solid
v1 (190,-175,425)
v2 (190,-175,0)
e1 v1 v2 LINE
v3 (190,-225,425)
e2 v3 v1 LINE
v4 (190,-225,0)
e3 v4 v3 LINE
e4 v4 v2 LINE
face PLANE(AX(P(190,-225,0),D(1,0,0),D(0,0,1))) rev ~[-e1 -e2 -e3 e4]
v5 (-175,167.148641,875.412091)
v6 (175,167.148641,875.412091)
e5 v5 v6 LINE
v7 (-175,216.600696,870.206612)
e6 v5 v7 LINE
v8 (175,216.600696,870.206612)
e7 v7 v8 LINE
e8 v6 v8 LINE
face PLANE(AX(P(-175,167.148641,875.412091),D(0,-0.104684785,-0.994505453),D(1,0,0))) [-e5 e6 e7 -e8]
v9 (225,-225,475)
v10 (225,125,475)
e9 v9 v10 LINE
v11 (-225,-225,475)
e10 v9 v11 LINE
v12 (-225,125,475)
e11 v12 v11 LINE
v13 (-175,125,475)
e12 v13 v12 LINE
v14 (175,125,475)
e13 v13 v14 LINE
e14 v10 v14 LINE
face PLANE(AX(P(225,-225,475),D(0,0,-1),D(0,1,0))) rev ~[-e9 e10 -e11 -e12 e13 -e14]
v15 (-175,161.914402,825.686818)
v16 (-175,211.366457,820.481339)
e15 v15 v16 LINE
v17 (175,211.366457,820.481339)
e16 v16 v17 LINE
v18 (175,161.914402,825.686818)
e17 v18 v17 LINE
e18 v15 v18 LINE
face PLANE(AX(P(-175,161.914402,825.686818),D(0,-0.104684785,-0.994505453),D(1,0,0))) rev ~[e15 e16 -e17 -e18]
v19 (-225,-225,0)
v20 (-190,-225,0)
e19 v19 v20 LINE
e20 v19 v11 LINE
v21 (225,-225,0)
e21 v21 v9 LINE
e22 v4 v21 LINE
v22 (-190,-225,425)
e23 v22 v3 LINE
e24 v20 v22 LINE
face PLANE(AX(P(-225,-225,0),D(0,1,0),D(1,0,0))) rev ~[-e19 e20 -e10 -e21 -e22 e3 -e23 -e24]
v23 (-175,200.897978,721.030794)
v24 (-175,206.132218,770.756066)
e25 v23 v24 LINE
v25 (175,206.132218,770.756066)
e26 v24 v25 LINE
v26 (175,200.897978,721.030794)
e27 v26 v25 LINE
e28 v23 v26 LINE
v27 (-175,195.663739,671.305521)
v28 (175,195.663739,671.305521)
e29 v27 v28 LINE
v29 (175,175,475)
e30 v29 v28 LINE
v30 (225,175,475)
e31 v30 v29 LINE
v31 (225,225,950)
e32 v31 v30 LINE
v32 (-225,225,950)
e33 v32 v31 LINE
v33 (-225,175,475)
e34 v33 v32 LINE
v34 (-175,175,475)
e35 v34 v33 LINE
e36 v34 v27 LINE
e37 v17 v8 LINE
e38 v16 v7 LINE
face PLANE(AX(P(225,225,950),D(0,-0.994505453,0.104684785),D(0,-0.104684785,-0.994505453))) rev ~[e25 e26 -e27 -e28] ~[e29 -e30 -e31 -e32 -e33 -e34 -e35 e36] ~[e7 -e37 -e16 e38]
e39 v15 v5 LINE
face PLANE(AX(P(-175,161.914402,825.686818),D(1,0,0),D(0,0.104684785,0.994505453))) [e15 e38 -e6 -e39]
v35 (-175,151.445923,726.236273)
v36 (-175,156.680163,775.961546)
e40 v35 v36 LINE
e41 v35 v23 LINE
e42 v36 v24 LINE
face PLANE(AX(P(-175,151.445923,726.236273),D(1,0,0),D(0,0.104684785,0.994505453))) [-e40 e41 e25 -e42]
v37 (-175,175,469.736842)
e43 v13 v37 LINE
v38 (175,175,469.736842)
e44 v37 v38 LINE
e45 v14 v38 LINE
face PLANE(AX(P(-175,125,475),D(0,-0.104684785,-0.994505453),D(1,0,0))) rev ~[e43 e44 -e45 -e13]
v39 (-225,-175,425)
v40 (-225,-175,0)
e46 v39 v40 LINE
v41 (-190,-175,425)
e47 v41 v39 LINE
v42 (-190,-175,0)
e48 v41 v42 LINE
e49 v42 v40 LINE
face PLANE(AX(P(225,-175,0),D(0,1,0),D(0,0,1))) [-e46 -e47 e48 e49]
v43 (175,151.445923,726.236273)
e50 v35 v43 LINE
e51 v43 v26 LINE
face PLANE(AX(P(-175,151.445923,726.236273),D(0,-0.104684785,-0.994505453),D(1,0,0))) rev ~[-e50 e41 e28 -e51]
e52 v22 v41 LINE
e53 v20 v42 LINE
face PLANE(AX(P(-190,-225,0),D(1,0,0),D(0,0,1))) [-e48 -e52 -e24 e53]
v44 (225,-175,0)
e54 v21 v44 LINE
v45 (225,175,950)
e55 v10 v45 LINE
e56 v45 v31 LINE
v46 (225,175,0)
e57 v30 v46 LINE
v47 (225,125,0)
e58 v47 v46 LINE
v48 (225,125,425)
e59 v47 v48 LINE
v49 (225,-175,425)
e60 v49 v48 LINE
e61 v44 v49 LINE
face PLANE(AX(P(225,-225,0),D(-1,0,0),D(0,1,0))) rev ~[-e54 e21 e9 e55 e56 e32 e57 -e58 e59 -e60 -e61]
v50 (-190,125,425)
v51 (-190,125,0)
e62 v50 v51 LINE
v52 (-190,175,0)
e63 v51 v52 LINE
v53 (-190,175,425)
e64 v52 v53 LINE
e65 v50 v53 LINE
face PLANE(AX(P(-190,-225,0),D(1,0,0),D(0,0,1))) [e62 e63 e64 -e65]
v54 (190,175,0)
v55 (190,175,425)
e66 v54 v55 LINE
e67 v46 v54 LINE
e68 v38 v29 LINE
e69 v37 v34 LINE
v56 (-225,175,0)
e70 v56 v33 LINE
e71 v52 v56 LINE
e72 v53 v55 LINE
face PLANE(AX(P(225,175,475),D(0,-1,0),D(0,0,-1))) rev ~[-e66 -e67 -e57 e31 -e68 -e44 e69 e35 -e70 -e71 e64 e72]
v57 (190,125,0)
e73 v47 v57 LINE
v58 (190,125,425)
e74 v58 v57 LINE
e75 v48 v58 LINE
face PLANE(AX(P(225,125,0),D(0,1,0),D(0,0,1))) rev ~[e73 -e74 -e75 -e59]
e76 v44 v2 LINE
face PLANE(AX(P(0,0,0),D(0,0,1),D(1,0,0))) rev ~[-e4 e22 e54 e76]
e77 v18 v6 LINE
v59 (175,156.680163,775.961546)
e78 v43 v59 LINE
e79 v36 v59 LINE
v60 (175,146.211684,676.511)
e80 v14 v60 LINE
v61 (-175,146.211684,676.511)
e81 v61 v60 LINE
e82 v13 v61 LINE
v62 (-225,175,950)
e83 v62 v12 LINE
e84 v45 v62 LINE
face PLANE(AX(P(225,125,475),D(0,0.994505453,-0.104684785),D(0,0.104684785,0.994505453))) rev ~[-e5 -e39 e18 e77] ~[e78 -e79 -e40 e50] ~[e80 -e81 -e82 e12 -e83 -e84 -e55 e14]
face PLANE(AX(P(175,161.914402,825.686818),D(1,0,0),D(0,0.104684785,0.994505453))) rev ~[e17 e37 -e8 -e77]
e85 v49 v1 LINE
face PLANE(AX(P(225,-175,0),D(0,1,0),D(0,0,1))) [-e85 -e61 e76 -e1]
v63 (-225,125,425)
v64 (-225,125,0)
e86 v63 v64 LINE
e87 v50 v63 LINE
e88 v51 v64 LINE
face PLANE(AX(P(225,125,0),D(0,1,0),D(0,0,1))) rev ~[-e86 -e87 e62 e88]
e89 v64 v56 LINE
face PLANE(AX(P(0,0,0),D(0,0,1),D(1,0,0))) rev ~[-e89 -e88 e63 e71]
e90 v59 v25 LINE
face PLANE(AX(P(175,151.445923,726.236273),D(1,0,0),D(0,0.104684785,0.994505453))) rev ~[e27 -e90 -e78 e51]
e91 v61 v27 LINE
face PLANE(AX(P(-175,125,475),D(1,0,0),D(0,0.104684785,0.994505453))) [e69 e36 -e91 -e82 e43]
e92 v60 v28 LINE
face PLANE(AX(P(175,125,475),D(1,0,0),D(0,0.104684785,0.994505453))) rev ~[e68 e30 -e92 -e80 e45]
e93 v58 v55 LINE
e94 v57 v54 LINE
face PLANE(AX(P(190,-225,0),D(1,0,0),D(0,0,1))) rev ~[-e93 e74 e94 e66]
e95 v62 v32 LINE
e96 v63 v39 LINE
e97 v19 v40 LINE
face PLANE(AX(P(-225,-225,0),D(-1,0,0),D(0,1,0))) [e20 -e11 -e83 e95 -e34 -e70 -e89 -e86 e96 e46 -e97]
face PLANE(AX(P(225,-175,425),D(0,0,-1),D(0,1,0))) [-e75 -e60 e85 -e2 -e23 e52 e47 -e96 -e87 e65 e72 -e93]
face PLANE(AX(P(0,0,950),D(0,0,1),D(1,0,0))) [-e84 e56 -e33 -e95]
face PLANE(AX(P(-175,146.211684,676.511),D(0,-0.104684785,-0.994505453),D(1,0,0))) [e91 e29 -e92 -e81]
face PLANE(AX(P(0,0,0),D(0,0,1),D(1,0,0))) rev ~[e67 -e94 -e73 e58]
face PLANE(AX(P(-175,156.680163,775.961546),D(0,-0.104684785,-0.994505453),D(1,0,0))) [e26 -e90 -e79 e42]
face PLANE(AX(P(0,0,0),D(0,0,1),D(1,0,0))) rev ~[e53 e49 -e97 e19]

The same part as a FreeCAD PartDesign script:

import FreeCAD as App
import Part
import Sketcher
from FreeCAD import Vector


def add_polygon(sketch, points):
    """Adds a closed chain of lines whose ends are joined by coincident constraints."""
    first, n = sketch.GeometryCount, len(points)
    for a, b in zip(points, points[1:] + points[:1]):
        sketch.addGeometry(Part.LineSegment(App.Vector(*a, 0), App.Vector(*b, 0)), False)
    for i in range(n):
        sketch.addConstraint(Sketcher.Constraint("Coincident", first + i, 2, first + (i + 1) % n, 1))

doc = App.newDocument("Part")
body = doc.addObject("PartDesign::Body", "Body")

# Sketch on XY plane
sketch1 = body.newObject("Sketcher::SketchObject", "Sketch")
sketch1.AttachmentSupport = (doc.getObject("XY_Plane"), [""])
sketch1.MapMode = "FlatFace"
add_polygon(sketch1, [(-225, 225), (-225, -225), (225, -225), (225, 225)])  # lines 0-3
sketch1.addConstraint([
    Sketcher.Constraint("Vertical", 0),
    Sketcher.Constraint("Horizontal", 1),
    Sketcher.Constraint("Vertical", 2),
    Sketcher.Constraint("Horizontal", 3),
    Sketcher.Constraint("Symmetric", 0, 2, 2, 2, -1, 1),
    Sketcher.Constraint("Equal", 3, 0),
    Sketcher.Constraint("DistanceX", 1, 1, 1, 2, 450.0),
])
pad1 = body.newObject("PartDesign::Pad", "Pad")
pad1.Profile = sketch1
pad1.Length = 950

# Sketch on YZ plane
sketch2 = body.newObject("Sketcher::SketchObject", "Sketch001")
sketch2.AttachmentSupport = (doc.getObject("YZ_Plane"), [""])
sketch2.MapMode = "FlatFace"
sketch2.AttachmentOffset = App.Placement(Vector(0, 0, 225), App.Rotation())
add_polygon(sketch2, [(-225, 475), (125, 475), (175, 950), (-225, 950)])  # lines 0-3
add_polygon(sketch2, [(225, 950), (175, 475), (175, 0), (225, 0)])  # lines 4-7
add_polygon(sketch2, [(-175, 425), (-175, 0), (125, 0), (125, 425)])  # lines 8-11
sketch2.addConstraint([
    Sketcher.Constraint("Horizontal", 0),
    Sketcher.Constraint("Horizontal", 2),
    Sketcher.Constraint("Vertical", 3),
    Sketcher.Constraint("Vertical", 5),
    Sketcher.Constraint("Horizontal", 6),
    Sketcher.Constraint("Vertical", 7),
    Sketcher.Constraint("Vertical", 8),
    Sketcher.Constraint("Horizontal", 9),
    Sketcher.Constraint("Vertical", 10),
    Sketcher.Constraint("Horizontal", 11),
    Sketcher.Constraint("Symmetric", 5, 2, 8, 2, -1, 1),
    Sketcher.Constraint("Symmetric", 2, 2, 7, 2, -2),
    Sketcher.Constraint("PointOnObject", 5, 2, -1),
    Sketcher.Constraint("Parallel", 1, 4),
    Sketcher.Constraint("Horizontal", 3, 2, 4, 2),
    Sketcher.Constraint("Vertical", 1, 2, 4, 2),
    Sketcher.Constraint("Vertical", 0, 2, 9, 2),
    Sketcher.Constraint("Equal", 3, 5),
    Sketcher.Constraint("DistanceX", 0, 1, 0, 2, 350.0),
    Sketcher.Constraint("DistanceX", 2, 2, 2, 1, 400.0),
    Sketcher.Constraint("DistanceY", 3, 2, 3, 1, 475.0),
    Sketcher.Constraint("DistanceY", 8, 2, 8, 1, 425.0),
])
pocket1 = body.newObject("PartDesign::Pocket", "Pocket")
pocket1.Profile = sketch2
pocket1.Type = "ThroughAll"

# Sketch on XZ plane
sketch3 = body.newObject("Sketcher::SketchObject", "Sketch002")
sketch3.AttachmentSupport = (doc.getObject("XZ_Plane"), [""])
sketch3.MapMode = "FlatFace"
sketch3.AttachmentOffset = App.Placement(Vector(0, 0, 225), App.Rotation())
add_polygon(sketch3, [(-190, 425), (-190, 0), (190, 0), (190, 425)])  # lines 0-3
sketch3.addConstraint([
    Sketcher.Constraint("Vertical", 0),
    Sketcher.Constraint("Horizontal", 1),
    Sketcher.Constraint("Vertical", 2),
    Sketcher.Constraint("Horizontal", 3),
    Sketcher.Constraint("Symmetric", 0, 2, 1, 2, -1, 1),
    Sketcher.Constraint("DistanceX", 1, 1, 1, 2, 380.0),
    Sketcher.Constraint("DistanceY", 0, 2, 0, 1, 425.0),
])
pocket2 = body.newObject("PartDesign::Pocket", "Pocket001")
pocket2.Profile = sketch3
pocket2.Type = "ThroughAll"

# Sketch on an angled plane
sketch4 = body.newObject("Sketcher::SketchObject", "Sketch003")
sketch4.Placement = App.Placement(Vector(0, 74.178082, -7.808219), App.Rotation(Vector(1, 0, 0), Vector(0, 0.104684785, 0.994505453), Vector(0, -0.994505453, 0.104684785), "ZXY"))
add_polygon(sketch4, [(-175, 688.100018), (-175, 485.475688), (175, 485.475688), (175, 688.100018)])  # lines 0-3
add_polygon(sketch4, [(-175, 788.100018), (-175, 738.100018), (175, 738.100018), (175, 788.100018)])  # lines 4-7
add_polygon(sketch4, [(-175, 888.100018), (-175, 838.100018), (175, 838.100018), (175, 888.100018)])  # lines 8-11
sketch4.addConstraint([
    Sketcher.Constraint("Vertical", 0),
    Sketcher.Constraint("Horizontal", 1),
    Sketcher.Constraint("Vertical", 2),
    Sketcher.Constraint("Horizontal", 3),
    Sketcher.Constraint("Vertical", 4),
    Sketcher.Constraint("Horizontal", 5),
    Sketcher.Constraint("Vertical", 6),
    Sketcher.Constraint("Horizontal", 7),
    Sketcher.Constraint("Vertical", 8),
    Sketcher.Constraint("Horizontal", 9),
    Sketcher.Constraint("Vertical", 10),
    Sketcher.Constraint("Horizontal", 11),
    Sketcher.Constraint("Vertical", 3, 2, 4, 2),
    Sketcher.Constraint("Vertical", 2, 2, 5, 2),
    Sketcher.Constraint("Vertical", 7, 2, 8, 2),
    Sketcher.Constraint("Vertical", 6, 2, 9, 2),
    Sketcher.Constraint("Equal", 6, 8),
    Sketcher.Constraint("DistanceX", 1, 1, 1, 2, 350.0),
    Sketcher.Constraint("DistanceY", 4, 2, 4, 1, 50.0),
    Sketcher.Constraint("DistanceX", 0, 2, -1, 1, 175.0),
    Sketcher.Constraint("DistanceY", 3, 2, 4, 2, 50.0),
    Sketcher.Constraint("DistanceY", 7, 2, 8, 2, 50.0),
    Sketcher.Constraint("DistanceY", 0, 2, 0, 1, 202.624329),
    Sketcher.Constraint("DistanceY", -1, 1, 0, 2, 485.475688),
])
pocket3 = body.newObject("PartDesign::Pocket", "Pocket002")
pocket3.Profile = sketch4
pocket3.Type = "ThroughAll"

doc.recompute()
